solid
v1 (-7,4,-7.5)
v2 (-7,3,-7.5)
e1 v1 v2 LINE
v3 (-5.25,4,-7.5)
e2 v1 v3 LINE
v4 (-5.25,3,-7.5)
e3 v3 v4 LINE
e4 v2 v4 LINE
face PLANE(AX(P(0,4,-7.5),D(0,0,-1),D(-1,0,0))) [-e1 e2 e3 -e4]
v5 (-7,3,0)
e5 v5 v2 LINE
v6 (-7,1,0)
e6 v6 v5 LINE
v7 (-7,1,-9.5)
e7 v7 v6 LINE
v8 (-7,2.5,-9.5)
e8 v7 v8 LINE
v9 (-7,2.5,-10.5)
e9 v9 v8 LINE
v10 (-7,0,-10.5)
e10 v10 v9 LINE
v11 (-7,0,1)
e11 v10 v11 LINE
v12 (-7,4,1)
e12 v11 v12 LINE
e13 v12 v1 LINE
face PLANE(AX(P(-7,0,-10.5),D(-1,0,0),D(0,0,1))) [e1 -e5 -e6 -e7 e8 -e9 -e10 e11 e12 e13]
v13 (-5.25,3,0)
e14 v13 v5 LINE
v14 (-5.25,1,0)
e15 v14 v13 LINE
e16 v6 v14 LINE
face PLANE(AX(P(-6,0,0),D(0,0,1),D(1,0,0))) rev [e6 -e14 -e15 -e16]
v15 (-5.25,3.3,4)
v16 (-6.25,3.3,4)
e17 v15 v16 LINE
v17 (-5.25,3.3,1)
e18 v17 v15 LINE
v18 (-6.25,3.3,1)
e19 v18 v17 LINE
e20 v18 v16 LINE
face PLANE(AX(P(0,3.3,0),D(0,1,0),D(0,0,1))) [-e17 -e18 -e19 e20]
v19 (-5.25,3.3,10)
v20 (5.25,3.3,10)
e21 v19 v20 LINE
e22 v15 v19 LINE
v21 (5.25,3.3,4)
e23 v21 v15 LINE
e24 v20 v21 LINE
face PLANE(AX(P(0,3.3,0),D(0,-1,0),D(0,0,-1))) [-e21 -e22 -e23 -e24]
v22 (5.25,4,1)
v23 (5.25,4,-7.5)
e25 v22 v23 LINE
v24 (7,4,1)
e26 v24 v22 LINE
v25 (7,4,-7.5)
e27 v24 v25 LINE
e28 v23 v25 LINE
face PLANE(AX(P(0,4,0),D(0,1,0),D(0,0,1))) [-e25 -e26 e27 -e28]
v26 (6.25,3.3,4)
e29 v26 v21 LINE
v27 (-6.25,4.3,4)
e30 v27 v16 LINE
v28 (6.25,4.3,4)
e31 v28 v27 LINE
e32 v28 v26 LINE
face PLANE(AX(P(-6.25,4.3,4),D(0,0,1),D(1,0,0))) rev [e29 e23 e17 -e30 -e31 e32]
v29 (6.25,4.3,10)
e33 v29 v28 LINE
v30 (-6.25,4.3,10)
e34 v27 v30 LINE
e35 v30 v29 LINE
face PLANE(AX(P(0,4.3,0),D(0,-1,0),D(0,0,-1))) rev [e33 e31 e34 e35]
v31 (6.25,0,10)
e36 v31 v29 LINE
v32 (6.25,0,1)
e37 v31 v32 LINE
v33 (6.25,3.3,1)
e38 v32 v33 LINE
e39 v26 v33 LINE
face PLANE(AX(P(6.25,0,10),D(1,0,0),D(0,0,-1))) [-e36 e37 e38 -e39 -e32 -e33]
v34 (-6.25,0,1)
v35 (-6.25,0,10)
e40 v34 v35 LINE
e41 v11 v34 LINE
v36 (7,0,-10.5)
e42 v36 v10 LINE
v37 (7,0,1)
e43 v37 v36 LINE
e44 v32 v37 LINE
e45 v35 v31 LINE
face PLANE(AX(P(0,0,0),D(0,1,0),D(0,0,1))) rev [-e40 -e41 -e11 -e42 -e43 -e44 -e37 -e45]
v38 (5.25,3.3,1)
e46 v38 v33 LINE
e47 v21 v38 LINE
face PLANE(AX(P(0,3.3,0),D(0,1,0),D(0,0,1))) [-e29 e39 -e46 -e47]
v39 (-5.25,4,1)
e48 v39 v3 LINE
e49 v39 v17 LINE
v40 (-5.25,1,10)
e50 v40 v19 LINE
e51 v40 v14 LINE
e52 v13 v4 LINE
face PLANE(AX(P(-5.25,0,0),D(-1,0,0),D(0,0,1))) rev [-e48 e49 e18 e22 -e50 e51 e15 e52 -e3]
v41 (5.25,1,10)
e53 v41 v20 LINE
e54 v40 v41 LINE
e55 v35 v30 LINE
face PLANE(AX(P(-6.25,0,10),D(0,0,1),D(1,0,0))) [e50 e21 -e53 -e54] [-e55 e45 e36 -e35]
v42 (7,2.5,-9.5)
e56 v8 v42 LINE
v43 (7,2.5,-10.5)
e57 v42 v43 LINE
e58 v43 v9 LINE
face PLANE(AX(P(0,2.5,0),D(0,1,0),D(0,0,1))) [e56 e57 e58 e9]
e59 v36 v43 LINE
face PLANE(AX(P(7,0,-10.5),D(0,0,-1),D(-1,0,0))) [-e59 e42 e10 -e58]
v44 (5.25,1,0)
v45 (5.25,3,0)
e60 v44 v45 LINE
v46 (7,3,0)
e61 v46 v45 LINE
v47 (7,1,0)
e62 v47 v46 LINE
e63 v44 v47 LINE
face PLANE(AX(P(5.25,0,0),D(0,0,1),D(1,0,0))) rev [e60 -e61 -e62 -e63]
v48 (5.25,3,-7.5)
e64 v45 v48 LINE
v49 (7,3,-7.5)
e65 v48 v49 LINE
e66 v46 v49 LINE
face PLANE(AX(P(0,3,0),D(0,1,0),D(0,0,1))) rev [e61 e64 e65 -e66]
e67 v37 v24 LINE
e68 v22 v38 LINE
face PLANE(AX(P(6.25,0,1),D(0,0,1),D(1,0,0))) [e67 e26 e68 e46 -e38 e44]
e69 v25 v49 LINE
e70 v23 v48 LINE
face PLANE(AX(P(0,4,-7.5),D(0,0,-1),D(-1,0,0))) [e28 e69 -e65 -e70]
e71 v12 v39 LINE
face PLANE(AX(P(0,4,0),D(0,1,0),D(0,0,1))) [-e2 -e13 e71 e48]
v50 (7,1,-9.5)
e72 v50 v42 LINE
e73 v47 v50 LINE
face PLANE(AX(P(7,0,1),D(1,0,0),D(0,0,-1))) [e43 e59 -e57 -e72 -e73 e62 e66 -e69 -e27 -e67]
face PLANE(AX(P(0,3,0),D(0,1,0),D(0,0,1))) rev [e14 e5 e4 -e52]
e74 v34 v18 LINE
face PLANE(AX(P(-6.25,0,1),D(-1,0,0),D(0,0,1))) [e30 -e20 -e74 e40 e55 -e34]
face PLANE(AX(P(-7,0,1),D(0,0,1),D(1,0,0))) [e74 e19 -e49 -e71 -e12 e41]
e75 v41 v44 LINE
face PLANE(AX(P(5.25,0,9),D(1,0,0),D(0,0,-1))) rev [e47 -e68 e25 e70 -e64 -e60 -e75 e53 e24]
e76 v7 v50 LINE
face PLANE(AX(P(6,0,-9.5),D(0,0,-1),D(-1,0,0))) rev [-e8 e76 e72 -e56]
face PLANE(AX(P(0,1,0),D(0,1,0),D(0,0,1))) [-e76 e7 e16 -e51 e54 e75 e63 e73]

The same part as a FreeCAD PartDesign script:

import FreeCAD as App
import Part
import Sketcher

V = App.Vector
Q = App.Units.Quantity

doc = App.newDocument("Part")
body = doc.addObject("PartDesign::Body", "Body")

sketch1 = doc.addObject("Sketcher::SketchObject", "Sketch")
body.addObject(sketch1)
sketch1.AttachmentSupport = (doc.XZ_Plane, [""])
sketch1.MapMode = "FlatFace"
sketch1.addGeometry([
    Part.LineSegment(V(-6, -9.5, 0), V(-6, 0, 0)),
    Part.LineSegment(V(-6, 0, 0), V(-5.25, 0, 0)),
    Part.LineSegment(V(-5.25, 0, 0), V(-5.25, 9, 0)),
    Part.LineSegment(V(-5.25, 9, 0), V(5.25, 9, 0)),
    Part.LineSegment(V(5.25, 9, 0), V(5.25, 0, 0)),
    Part.LineSegment(V(5.25, 0, 0), V(6, 0, 0)),
    Part.LineSegment(V(6, 0, 0), V(6, -9.5, 0)),
    Part.LineSegment(V(6, -9.5, 0), V(-6, -9.5, 0)),
], False)
sketch1.addConstraint([
    Sketcher.Constraint("Coincident", 0, 2, 1, 1),
    Sketcher.Constraint("Coincident", 1, 2, 2, 1),
    Sketcher.Constraint("Coincident", 2, 2, 3, 1),
    Sketcher.Constraint("Coincident", 3, 2, 4, 1),
    Sketcher.Constraint("Coincident", 4, 2, 5, 1),
    Sketcher.Constraint("Coincident", 5, 2, 6, 1),
    Sketcher.Constraint("Coincident", 6, 2, 7, 1),
    Sketcher.Constraint("Coincident", 7, 2, 0, 1),
    Sketcher.Constraint("Vertical", 0),
    Sketcher.Constraint("Horizontal", 1),
    Sketcher.Constraint("Vertical", 2),
    Sketcher.Constraint("Horizontal", 3),
    Sketcher.Constraint("Vertical", 4),
    Sketcher.Constraint("Horizontal", 5),
    Sketcher.Constraint("Vertical", 6),
    Sketcher.Constraint("Horizontal", 7),
    Sketcher.Constraint("Symmetric", 1, 2, 4, 2, -1, 1),
    Sketcher.Constraint("Symmetric", 0, 2, 5, 2, -2),
    Sketcher.Constraint("DistanceX", 7, 2, 7, 1, Q("12 mm")),
    Sketcher.Constraint("DistanceY", 2, 1, 2, 2, Q("9 mm")),
    Sketcher.Constraint("DistanceX", 3, 1, 3, 2, Q("10.5 mm")),
    Sketcher.Constraint("DistanceY", 0, 1, 0, 2, Q("9.5 mm")),
])
pad1 = doc.addObject("PartDesign::Pad", "Pad")
body.addObject(pad1)
pad1.Profile = sketch1
pad1.Length = 1
pad1.Reversed = True

sketch2 = doc.addObject("Sketcher::SketchObject", "Sketch001")
body.addObject(sketch2)
sketch2.AttachmentSupport = (doc.XZ_Plane, [""])
sketch2.MapMode = "FlatFace"
sketch2.AttachmentOffset = App.Placement(V(0, 0, -1), App.Rotation())
sketch2.addGeometry([
    Part.LineSegment(V(7, 1, 0), V(7, -10.5, 0)),
    Part.LineSegment(V(7, -10.5, 0), V(-7, -10.5, 0)),
    Part.LineSegment(V(-7, -10.5, 0), V(-7, 1, 0)),
    Part.LineSegment(V(-7, 1, 0), V(-6.25, 1, 0)),
    Part.LineSegment(V(-6.25, 1, 0), V(-6.25, 10, 0)),
    Part.LineSegment(V(-6.25, 10, 0), V(6.25, 10, 0)),
    Part.LineSegment(V(6.25, 10, 0), V(6.25, 1, 0)),
    Part.LineSegment(V(6.25, 1, 0), V(7, 1, 0)),
    Part.LineSegment(V(6, -9.5, 0), V(6, 0, 0)),
    Part.LineSegment(V(6, 0, 0), V(5.25, 0, 0)),
    Part.LineSegment(V(5.25, 0, 0), V(5.25, 9, 0)),
    Part.LineSegment(V(5.25, 9, 0), V(-5.25, 9, 0)),
    Part.LineSegment(V(-5.25, 9, 0), V(-5.25, 0, 0)),
    Part.LineSegment(V(-5.25, 0, 0), V(-6, 0, 0)),
    Part.LineSegment(V(-6, 0, 0), V(-6, -9.5, 0)),
    Part.LineSegment(V(-6, -9.5, 0), V(6, -9.5, 0)),
], False)
sketch2.addConstraint([
    Sketcher.Constraint("Coincident", 0, 2, 1, 1),
    Sketcher.Constraint("Coincident", 1, 2, 2, 1),
    Sketcher.Constraint("Coincident", 2, 2, 3, 1),
    Sketcher.Constraint("Coincident", 3, 2, 4, 1),
    Sketcher.Constraint("Coincident", 4, 2, 5, 1),
    Sketcher.Constraint("Coincident", 5, 2, 6, 1),
    Sketcher.Constraint("Coincident", 6, 2, 7, 1),
    Sketcher.Constraint("Coincident", 7, 2, 0, 1),
    Sketcher.Constraint("Coincident", 8, 2, 9, 1),
    Sketcher.Constraint("Coincident", 9, 2, 10, 1),
    Sketcher.Constraint("Coincident", 10, 2, 11, 1),
    Sketcher.Constraint("Coincident", 11, 2, 12, 1),
    Sketcher.Constraint("Coincident", 12, 2, 13, 1),
    Sketcher.Constraint("Coincident", 13, 2, 14, 1),
    Sketcher.Constraint("Coincident", 14, 2, 15, 1),
    Sketcher.Constraint("Coincident", 15, 2, 8, 1),
    Sketcher.Constraint("Vertical", 0),
    Sketcher.Constraint("Horizontal", 1),
    Sketcher.Constraint("Vertical", 2),
    Sketcher.Constraint("Horizontal", 3),
    Sketcher.Constraint("Vertical", 4),
    Sketcher.Constraint("Horizontal", 5),
    Sketcher.Constraint("Vertical", 6),
    Sketcher.Constraint("Horizontal", 7),
    Sketcher.Constraint("Vertical", 8),
    Sketcher.Constraint("Horizontal", 9),
    Sketcher.Constraint("Vertical", 10),
    Sketcher.Constraint("Horizontal", 11),
    Sketcher.Constraint("Vertical", 12),
    Sketcher.Constraint("Horizontal", 13),
    Sketcher.Constraint("Vertical", 14),
    Sketcher.Constraint("Horizontal", 15),
    Sketcher.Constraint("Symmetric", 9, 2, 12, 2, -1, 1),
    Sketcher.Constraint("Symmetric", 3, 2, 6, 2, -2),
    Sketcher.Constraint("Symmetric", 8, 2, 13, 2, -2),
    Sketcher.Constraint("Equal", 3, 7),
    Sketcher.Constraint("Equal", 7, 9),
    Sketcher.Constraint("Equal", 6, 10),
    Sketcher.Constraint("DistanceX", 1, 2, 1, 1, Q("14 mm")),
    Sketcher.Constraint("DistanceX", 15, 1, 15, 2, Q("12 mm")),
    Sketcher.Constraint("DistanceY", 4, 1, 4, 2, Q("9 mm")),
    Sketcher.Constraint("DistanceX", 5, 1, 5, 2, Q("12.5 mm")),
    Sketcher.Constraint("DistanceY", 0, 2, 0, 1, Q("11.5 mm")),
    Sketcher.Constraint("DistanceY", 8, 1, 8, 2, Q("9.5 mm")),
    Sketcher.Constraint("DistanceY", -1, 1, 2, 2, Q("1 mm")),
])
pad2 = doc.addObject("PartDesign::Pad", "Pad001")
body.addObject(pad2)
pad2.Profile = sketch2
pad2.Type = "TwoLengths"
pad2.Length = 2.3
pad2.Length2 = 1
pad2.Reversed = True

sketch3 = doc.addObject("Sketcher::SketchObject", "Sketch002")
body.addObject(sketch3)
sketch3.AttachmentSupport = (doc.XZ_Plane, [""])
sketch3.MapMode = "FlatFace"
sketch3.AttachmentOffset = App.Placement(V(0, 0, -3.3), App.Rotation())
sketch3.addGeometry([
    Part.LineSegment(V(-7, -9.5, 0), V(-7, 0, 0)),
    Part.LineSegment(V(-7, 0, 0), V(-6, 0, 0)),
    Part.LineSegment(V(-6, 0, 0), V(-6, -9.5, 0)),
    Part.LineSegment(V(-6, -9.5, 0), V(-7, -9.5, 0)),
    Part.LineSegment(V(6, -9.5, 0), V(6, 0, 0)),
    Part.LineSegment(V(6, 0, 0), V(7, 0, 0)),
    Part.LineSegment(V(7, 0, 0), V(7, -9.5, 0)),
    Part.LineSegment(V(7, -9.5, 0), V(6, -9.5, 0)),
    Part.LineSegment(V(-5.25, 9, 0), V(-5.25, 10, 0)),
    Part.LineSegment(V(-5.25, 10, 0), V(5.25, 10, 0)),
    Part.LineSegment(V(5.25, 10, 0), V(5.25, 9, 0)),
    Part.LineSegment(V(5.25, 9, 0), V(-5.25, 9, 0)),
], False)
sketch3.addConstraint([
    Sketcher.Constraint("Coincident", 0, 2, 1, 1),
    Sketcher.Constraint("Coincident", 1, 2, 2, 1),
    Sketcher.Constraint("Coincident", 2, 2, 3, 1),
    Sketcher.Constraint("Coincident", 3, 2, 0, 1),
    Sketcher.Constraint("Coincident", 4, 2, 5, 1),
    Sketcher.Constraint("Coincident", 5, 2, 6, 1),
    Sketcher.Constraint("Coincident", 6, 2, 7, 1),
    Sketcher.Constraint("Coincident", 7, 2, 4, 1),
    Sketcher.Constraint("Coincident", 8, 2, 9, 1),
    Sketcher.Constraint("Coincident", 9, 2, 10, 1),
    Sketcher.Constraint("Coincident", 10, 2, 11, 1),
    Sketcher.Constraint("Coincident", 11, 2, 8, 1),
    Sketcher.Constraint("Vertical", 0),
    Sketcher.Constraint("Horizontal", 1),
    Sketcher.Constraint("Vertical", 2),
    Sketcher.Constraint("Horizontal", 3),
    Sketcher.Constraint("Vertical", 4),
    Sketcher.Constraint("Horizontal", 5),
    Sketcher.Constraint("Vertical", 6),
    Sketcher.Constraint("Horizontal", 7),
    Sketcher.Constraint("Vertical", 8),
    Sketcher.Constraint("Horizontal", 9),
    Sketcher.Constraint("Vertical", 10),
    Sketcher.Constraint("Horizontal", 11),
    Sketcher.Constraint("Symmetric", 1, 2, 4, 2, -1, 1),
    Sketcher.Constraint("Symmetric", 0, 2, 5, 2, -2),
    Sketcher.Constraint("Horizontal", 3, 2, 6, 2),
    Sketcher.Constraint("Equal", 7, 8),
    Sketcher.Constraint("DistanceX", 1, 1, 1, 2, Q("1 mm")),
    Sketcher.Constraint("DistanceX", 9, 1, 9, 2, Q("10.5 mm")),
    Sketcher.Constraint("DistanceY", 0, 1, 0, 2, Q("9.5 mm")),
    Sketcher.Constraint("DistanceX", 0, 2, -1, 1, Q("7 mm")),
    Sketcher.Constraint("DistanceY", -1, 1, 8, 2, Q("10 mm")),
    Sketcher.Constraint("DistanceX", 8, 2, -1, 1, Q("5.25 mm")),
])
pocket1 = doc.addObject("PartDesign::Pocket", "Pocket")
body.addObject(pocket1)
pocket1.Profile = sketch3
pocket1.Length = 2.3
pocket1.Reversed = True

sketch4 = doc.addObject("Sketcher::SketchObject", "Sketch003")
body.addObject(sketch4)
sketch4.AttachmentSupport = (doc.XZ_Plane, [""])
sketch4.MapMode = "FlatFace"
sketch4.AttachmentOffset = App.Placement(V(0, 0, -3.3), App.Rotation())
sketch4.addGeometry([
    Part.LineSegment(V(-6.25, 4, 0), V(-6.25, 10, 0)),
    Part.LineSegment(V(-6.25, 10, 0), V(6.25, 10, 0)),
    Part.LineSegment(V(6.25, 10, 0), V(6.25, 4, 0)),
    Part.LineSegment(V(6.25, 4, 0), V(-6.25, 4, 0)),
], False)
sketch4.addConstraint([
    Sketcher.Constraint("Coincident", 0, 2, 1, 1),
    Sketcher.Constraint("Coincident", 1, 2, 2, 1),
    Sketcher.Constraint("Coincident", 2, 2, 3, 1),
    Sketcher.Constraint("Coincident", 3, 2, 0, 1),
    Sketcher.Constraint("Vertical", 0),
    Sketcher.Constraint("Horizontal", 1),
    Sketcher.Constraint("Vertical", 2),
    Sketcher.Constraint("Horizontal", 3),
    Sketcher.Constraint("DistanceY", 0, 1, 0, 2, Q("6 mm")),
    Sketcher.Constraint("DistanceX", 1, 1, 1, 2, Q("12.5 mm")),
    Sketcher.Constraint("DistanceY", -1, 1, 0, 2, Q("10 mm")),
    Sketcher.Constraint("DistanceX", 0, 2, -1, 1, Q("6.25 mm")),
])
pad3 = doc.addObject("PartDesign::Pad", "Pad002")
body.addObject(pad3)
pad3.Profile = sketch4
pad3.Length = 1
pad3.Reversed = True

sketch5 = doc.addObject("Sketcher::SketchObject", "Sketch004")
body.addObject(sketch5)
sketch5.AttachmentSupport = (doc.XZ_Plane, [""])
sketch5.MapMode = "FlatFace"
sketch5.AttachmentOffset = App.Placement(V(0, 0, -3.3), App.Rotation())
sketch5.addGeometry([
    Part.LineSegment(V(-7, 0, 0), V(-7, 1, 0)),
    Part.LineSegment(V(-7, 1, 0), V(-5.25, 1, 0)),
    Part.LineSegment(V(-5.25, 1, 0), V(-5.25, 0, 0)),
    Part.LineSegment(V(-5.25, 0, 0), V(-7, 0, 0)),
    Part.LineSegment(V(5.25, 0, 0), V(5.25, 1, 0)),
    Part.LineSegment(V(5.25, 1, 0), V(7, 1, 0)),
    Part.LineSegment(V(7, 1, 0), V(7, 0, 0)),
    Part.LineSegment(V(7, 0, 0), V(5.25, 0, 0)),
], False)
sketch5.addConstraint([
    Sketcher.Constraint("Coincident", 0, 2, 1, 1),
    Sketcher.Constraint("Coincident", 1, 2, 2, 1),
    Sketcher.Constraint("Coincident", 2, 2, 3, 1),
    Sketcher.Constraint("Coincident", 3, 2, 0, 1),
    Sketcher.Constraint("Coincident", 4, 2, 5, 1),
    Sketcher.Constraint("Coincident", 5, 2, 6, 1),
    Sketcher.Constraint("Coincident", 6, 2, 7, 1),
    Sketcher.Constraint("Coincident", 7, 2, 4, 1),
    Sketcher.Constraint("Vertical", 0),
    Sketcher.Constraint("Horizontal", 1),
    Sketcher.Constraint("Vertical", 2),
    Sketcher.Constraint("Horizontal", 3),
    Sketcher.Constraint("Vertical", 4),
    Sketcher.Constraint("Horizontal", 5),
    Sketcher.Constraint("Vertical", 6),
    Sketcher.Constraint("Horizontal", 7),
    Sketcher.Constraint("Symmetric", 3, 2, 6, 2, -1, 1),
    Sketcher.Constraint("Symmetric", 1, 2, 4, 2, -2),
    Sketcher.Constraint("PointOnObject", 2, 2, -1),
    Sketcher.Constraint("DistanceY", 0, 1, 0, 2, Q("1 mm")),
    Sketcher.Constraint("DistanceX", 0, 2, -1, 1, Q("7 mm")),
    Sketcher.Constraint("DistanceX", 1, 1, 1, 2, Q("1.75 mm")),
])
pocket2 = doc.addObject("PartDesign::Pocket", "Pocket001")
body.addObject(pocket2)
pocket2.Profile = sketch5
pocket2.Length = 0.3
pocket2.Reversed = True

sketch6 = doc.addObject("Sketcher::SketchObject", "Sketch005")
body.addObject(sketch6)
sketch6.AttachmentSupport = (doc.XZ_Plane, [""])
sketch6.MapMode = "FlatFace"
sketch6.AttachmentOffset = App.Placement(V(0, 0, -3.3), App.Rotation())
sketch6.addGeometry([
    Part.LineSegment(V(-7, -10.5, 0), V(-7, -9.5, 0)),
    Part.LineSegment(V(-7, -9.5, 0), V(7, -9.5, 0)),
    Part.LineSegment(V(7, -9.5, 0), V(7, -10.5, 0)),
    Part.LineSegment(V(7, -10.5, 0), V(-7, -10.5, 0)),
], False)
sketch6.addConstraint([
    Sketcher.Constraint("Coincident", 0, 2, 1, 1),
    Sketcher.Constraint("Coincident", 1, 2, 2, 1),
    Sketcher.Constraint("Coincident", 2, 2, 3, 1),
    Sketcher.Constraint("Coincident", 3, 2, 0, 1),
    Sketcher.Constraint("Vertical", 0),
    Sketcher.Constraint("Horizontal", 1),
    Sketcher.Constraint("Vertical", 2),
    Sketcher.Constraint("Horizontal", 3),
    Sketcher.Constraint("DistanceX", 1, 1, 1, 2, Q("14 mm")),
    Sketcher.Constraint("DistanceY", 0, 1, 0, 2, Q("1 mm")),
    Sketcher.Constraint("DistanceX", 0, 2, -1, 1, Q("7 mm")),
    Sketcher.Constraint("DistanceY", 0, 2, -1, 1, Q("9.5 mm")),
])
pocket3 = doc.addObject("PartDesign::Pocket", "Pocket002")
body.addObject(pocket3)
pocket3.Profile = sketch6
pocket3.Length = 0.8
pocket3.Reversed = True

sketch7 = doc.addObject("Sketcher::SketchObject", "Sketch006")
body.addObject(sketch7)
sketch7.AttachmentSupport = (doc.XZ_Plane, [""])
sketch7.MapMode = "FlatFace"
sketch7.AttachmentOffset = App.Placement(V(0, 0, -3), App.Rotation())
sketch7.addGeometry([
    Part.LineSegment(V(-7, -7.5, 0), V(-7, 1, 0)),
    Part.LineSegment(V(-7, 1, 0), V(-5.25, 1, 0)),
    Part.LineSegment(V(-5.25, 1, 0), V(-5.25, -7.5, 0)),
    Part.LineSegment(V(-5.25, -7.5, 0), V(-7, -7.5, 0)),
    Part.LineSegment(V(5.25, -7.5, 0), V(5.25, 1, 0)),
    Part.LineSegment(V(5.25, 1, 0), V(7, 1, 0)),
    Part.LineSegment(V(7, 1, 0), V(7, -7.5, 0)),
    Part.LineSegment(V(7, -7.5, 0), V(5.25, -7.5, 0)),
], False)
sketch7.addConstraint([
    Sketcher.Constraint("Coincident", 0, 2, 1, 1),
    Sketcher.Constraint("Coincident", 1, 2, 2, 1),
    Sketcher.Constraint("Coincident", 2, 2, 3, 1),
    Sketcher.Constraint("Coincident", 3, 2, 0, 1),
    Sketcher.Constraint("Coincident", 4, 2, 5, 1),
    Sketcher.Constraint("Coincident", 5, 2, 6, 1),
    Sketcher.Constraint("Coincident", 6, 2, 7, 1),
    Sketcher.Constraint("Coincident", 7, 2, 4, 1),
    Sketcher.Constraint("Vertical", 0),
    Sketcher.Constraint("Horizontal", 1),
    Sketcher.Constraint("Vertical", 2),
    Sketcher.Constraint("Horizontal", 3),
    Sketcher.Constraint("Vertical", 4),
    Sketcher.Constraint("Horizontal", 5),
    Sketcher.Constraint("Vertical", 6),
    Sketcher.Constraint("Horizontal", 7),
    Sketcher.Constraint("Symmetric", 1, 2, 4, 2, -2),
    Sketcher.Constraint("Symmetric", 3, 2, 6, 2, -2),
    Sketcher.Constraint("DistanceY", 0, 1, 0, 2, Q("8.5 mm")),
    Sketcher.Constraint("DistanceX", 0, 2, -1, 1, Q("7 mm")),
    Sketcher.Constraint("DistanceY", -1, 1, 0, 2, Q("1 mm")),
    Sketcher.Constraint("DistanceX", 1, 1, 1, 2, Q("1.75 mm")),
])
pad4 = doc.addObject("PartDesign::Pad", "Pad003")
body.addObject(pad4)
pad4.Profile = sketch7
pad4.Length = 1
pad4.Reversed = True

doc.recompute()
